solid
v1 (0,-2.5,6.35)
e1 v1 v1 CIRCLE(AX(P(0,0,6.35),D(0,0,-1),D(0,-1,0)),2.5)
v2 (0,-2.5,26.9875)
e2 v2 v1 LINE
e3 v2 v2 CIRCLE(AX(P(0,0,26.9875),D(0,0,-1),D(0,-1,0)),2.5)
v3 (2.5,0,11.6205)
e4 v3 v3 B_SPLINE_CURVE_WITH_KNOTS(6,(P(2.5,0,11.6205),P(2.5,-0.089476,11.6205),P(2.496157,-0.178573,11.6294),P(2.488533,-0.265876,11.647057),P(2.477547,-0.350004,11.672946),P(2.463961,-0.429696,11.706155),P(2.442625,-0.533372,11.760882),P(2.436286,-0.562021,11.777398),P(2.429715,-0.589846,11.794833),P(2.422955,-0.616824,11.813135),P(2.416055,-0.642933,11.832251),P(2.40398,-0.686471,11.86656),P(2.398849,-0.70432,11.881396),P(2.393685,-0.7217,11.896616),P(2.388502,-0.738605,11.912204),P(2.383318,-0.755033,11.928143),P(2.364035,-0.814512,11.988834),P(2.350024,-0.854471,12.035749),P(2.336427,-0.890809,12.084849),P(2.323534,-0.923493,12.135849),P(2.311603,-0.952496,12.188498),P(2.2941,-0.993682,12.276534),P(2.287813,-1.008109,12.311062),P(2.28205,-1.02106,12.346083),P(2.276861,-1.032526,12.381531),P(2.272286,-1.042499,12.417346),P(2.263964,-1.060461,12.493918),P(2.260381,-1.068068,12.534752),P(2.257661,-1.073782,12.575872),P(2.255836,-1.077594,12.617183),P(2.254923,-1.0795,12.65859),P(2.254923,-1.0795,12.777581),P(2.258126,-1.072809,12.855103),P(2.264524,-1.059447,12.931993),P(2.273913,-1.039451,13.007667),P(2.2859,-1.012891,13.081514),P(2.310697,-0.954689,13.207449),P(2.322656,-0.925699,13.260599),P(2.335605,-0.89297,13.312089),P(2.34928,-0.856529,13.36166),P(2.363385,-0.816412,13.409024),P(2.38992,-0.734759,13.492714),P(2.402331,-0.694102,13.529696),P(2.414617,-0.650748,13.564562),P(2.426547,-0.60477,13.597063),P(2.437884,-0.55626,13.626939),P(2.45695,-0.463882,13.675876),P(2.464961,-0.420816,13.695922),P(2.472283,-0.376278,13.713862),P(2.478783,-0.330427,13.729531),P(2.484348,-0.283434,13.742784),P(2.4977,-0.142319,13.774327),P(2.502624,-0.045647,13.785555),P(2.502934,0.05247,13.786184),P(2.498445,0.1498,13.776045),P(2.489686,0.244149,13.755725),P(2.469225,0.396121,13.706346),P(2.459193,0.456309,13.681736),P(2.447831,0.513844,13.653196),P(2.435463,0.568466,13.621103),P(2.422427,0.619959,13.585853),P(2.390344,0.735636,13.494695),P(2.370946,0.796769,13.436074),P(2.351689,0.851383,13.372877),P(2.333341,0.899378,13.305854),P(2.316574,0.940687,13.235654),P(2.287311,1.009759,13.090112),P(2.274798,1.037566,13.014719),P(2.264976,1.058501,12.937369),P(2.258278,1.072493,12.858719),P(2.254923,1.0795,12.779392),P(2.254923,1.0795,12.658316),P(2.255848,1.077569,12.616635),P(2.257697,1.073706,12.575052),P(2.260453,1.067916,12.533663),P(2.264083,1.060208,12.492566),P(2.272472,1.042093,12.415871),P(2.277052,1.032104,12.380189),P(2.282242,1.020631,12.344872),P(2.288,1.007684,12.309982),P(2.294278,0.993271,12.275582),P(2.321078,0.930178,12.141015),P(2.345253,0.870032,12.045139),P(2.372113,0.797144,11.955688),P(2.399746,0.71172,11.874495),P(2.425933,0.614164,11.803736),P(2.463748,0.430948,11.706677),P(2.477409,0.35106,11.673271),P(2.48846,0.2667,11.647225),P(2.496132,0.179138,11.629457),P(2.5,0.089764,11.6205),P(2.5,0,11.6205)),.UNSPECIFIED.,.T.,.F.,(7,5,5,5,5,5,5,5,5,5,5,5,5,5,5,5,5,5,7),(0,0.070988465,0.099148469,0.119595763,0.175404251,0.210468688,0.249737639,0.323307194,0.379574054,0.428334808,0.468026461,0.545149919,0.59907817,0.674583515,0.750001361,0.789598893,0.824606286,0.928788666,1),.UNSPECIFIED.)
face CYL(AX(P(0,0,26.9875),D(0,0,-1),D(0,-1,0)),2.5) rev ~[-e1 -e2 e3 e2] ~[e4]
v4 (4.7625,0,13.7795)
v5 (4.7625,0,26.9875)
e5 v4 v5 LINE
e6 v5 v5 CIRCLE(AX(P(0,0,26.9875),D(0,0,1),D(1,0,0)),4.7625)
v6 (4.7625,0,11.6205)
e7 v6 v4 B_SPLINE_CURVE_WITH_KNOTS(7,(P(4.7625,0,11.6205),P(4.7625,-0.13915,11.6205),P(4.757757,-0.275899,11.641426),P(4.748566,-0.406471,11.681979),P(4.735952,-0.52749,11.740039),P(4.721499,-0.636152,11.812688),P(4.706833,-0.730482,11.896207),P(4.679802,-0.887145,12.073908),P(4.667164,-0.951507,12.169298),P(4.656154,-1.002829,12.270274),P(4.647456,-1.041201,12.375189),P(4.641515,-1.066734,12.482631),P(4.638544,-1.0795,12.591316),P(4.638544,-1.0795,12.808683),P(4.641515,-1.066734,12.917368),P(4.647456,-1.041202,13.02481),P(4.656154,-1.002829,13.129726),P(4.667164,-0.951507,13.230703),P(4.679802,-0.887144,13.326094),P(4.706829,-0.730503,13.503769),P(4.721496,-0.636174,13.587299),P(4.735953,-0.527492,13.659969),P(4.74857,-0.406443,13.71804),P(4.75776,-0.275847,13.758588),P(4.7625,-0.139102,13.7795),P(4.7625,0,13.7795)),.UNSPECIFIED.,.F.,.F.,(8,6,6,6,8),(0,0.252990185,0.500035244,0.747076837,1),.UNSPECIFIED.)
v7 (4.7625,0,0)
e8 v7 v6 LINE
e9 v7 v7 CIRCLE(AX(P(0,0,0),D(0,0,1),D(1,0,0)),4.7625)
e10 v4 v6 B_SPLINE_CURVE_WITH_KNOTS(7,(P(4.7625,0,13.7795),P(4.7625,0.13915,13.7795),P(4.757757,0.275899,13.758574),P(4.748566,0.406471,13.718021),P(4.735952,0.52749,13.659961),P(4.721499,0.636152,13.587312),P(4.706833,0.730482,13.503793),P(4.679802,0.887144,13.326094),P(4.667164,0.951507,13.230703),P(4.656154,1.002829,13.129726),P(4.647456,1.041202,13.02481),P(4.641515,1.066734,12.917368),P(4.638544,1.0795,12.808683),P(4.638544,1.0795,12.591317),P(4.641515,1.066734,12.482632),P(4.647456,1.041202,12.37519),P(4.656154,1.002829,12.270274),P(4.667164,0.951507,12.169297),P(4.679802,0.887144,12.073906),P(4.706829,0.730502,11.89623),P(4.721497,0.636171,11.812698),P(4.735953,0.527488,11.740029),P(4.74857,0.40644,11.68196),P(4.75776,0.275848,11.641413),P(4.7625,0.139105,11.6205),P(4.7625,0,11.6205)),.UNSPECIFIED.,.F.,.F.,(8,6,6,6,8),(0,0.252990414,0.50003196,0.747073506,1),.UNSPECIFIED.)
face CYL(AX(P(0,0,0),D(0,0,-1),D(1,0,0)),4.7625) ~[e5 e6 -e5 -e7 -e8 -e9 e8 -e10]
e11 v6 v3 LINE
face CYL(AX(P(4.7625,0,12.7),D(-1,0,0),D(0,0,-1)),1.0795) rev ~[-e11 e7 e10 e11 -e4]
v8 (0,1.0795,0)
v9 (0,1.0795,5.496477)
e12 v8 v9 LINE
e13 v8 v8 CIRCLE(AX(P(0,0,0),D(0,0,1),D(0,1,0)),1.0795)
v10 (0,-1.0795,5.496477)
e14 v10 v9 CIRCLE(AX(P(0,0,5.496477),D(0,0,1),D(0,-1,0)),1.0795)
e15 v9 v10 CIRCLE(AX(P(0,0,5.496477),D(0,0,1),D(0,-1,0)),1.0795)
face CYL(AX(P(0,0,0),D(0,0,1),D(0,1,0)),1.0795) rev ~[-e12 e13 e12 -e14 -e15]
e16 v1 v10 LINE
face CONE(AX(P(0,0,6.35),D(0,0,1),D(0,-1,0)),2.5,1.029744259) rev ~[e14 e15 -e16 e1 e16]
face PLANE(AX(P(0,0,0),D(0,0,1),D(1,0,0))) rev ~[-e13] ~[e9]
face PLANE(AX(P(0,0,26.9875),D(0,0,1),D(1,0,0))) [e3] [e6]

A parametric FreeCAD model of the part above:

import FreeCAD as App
import Part
import Sketcher
Q = App.Units.Quantity

doc = App.newDocument("Part")
params = doc.addObject("Spreadsheet::Sheet", "Params")
for row, (alias, value) in enumerate([
    ("sketch1_diameter", "0.375 in"),
    ("pad1_length", "1.0625 in"),
    ("hole_diameter", "5 mm"),
    ("hole_depth", "0.8125 in"),
    ("sketch3_diameter", "0.085 in"),
    ("hole2_diameter", "0.085 in"),
    ("hole2_depth", "0.349 in"),
    ("sketch4_diameter", "0.085 in"),
    ("hole3_diameter", "0.085 in"),
    ("hole3_depth", "0.15 in"),
], start=1):
    params.set(f"A{row}", alias)
    params.set(f"B{row}", "=" + value)
    params.setAlias(f"B{row}", alias)

body = doc.addObject("PartDesign::Body", "Body")

# Sketch on XY plane
sketch1 = doc.addObject("Sketcher::SketchObject", "Sketch")
body.addObject(sketch1)
sketch1.AttachmentSupport = (doc.XY_Plane, [""])
sketch1.MapMode = "FlatFace"
sketch1.addGeometry(Part.Circle(App.Vector(0, 0, 0), App.Vector(0, 0, 1), 4.8), False)
sketch1.addConstraint(Sketcher.Constraint("Coincident", 0, 3, -1, 1))
sketch1.addConstraint(Sketcher.Constraint("Diameter", 0, Q("0.375 in")))
sketch1.setExpression("Constraints[1]", "Params.sketch1_diameter")
pad1 = doc.addObject("PartDesign::Pad", "Pad")
body.addObject(pad1)
pad1.Profile = sketch1
pad1.setExpression("Length", "Params.pad1_length")

# Sketch on XY plane
sketch2 = doc.addObject("Sketcher::SketchObject", "Sketch001")
body.addObject(sketch2)
sketch2.AttachmentSupport = (doc.XY_Plane, [""])
sketch2.MapMode = "FlatFace"
sketch2.AttachmentOffset = App.Placement(App.Vector(0, 0, 1.0625 * 25.4), App.Rotation())
sketch2.addGeometry(Part.Circle(App.Vector(0, 0, 0), App.Vector(0, 0, 1), 2.5), False)
sketch2.addConstraint(Sketcher.Constraint("Coincident", 0, 3, -1, 1))
sketch2.addConstraint(Sketcher.Constraint("Diameter", 0, 5.0))
doc.recompute()
hole = doc.addObject("PartDesign::Hole", "Hole")
body.addObject(hole)
hole.Profile = sketch2
hole.ThreadType = "None"
hole.setExpression("Diameter", "Params.hole_diameter")
hole.DepthType = "Dimension"
hole.setExpression("Depth", "Params.hole_depth")
hole.DrillPoint = "Angled"
hole.DrillPointAngle = 118

# Sketch on XY plane
sketch3 = doc.addObject("Sketcher::SketchObject", "Sketch002")
body.addObject(sketch3)
sketch3.AttachmentSupport = (doc.XY_Plane, [""])
sketch3.MapMode = "FlatFace"
sketch3.addGeometry(Part.Circle(App.Vector(0, 0, 0), App.Vector(0, 0, 1), 1.1), False)
sketch3.addConstraint(Sketcher.Constraint("Coincident", 0, 3, -1, 1))
sketch3.addConstraint(Sketcher.Constraint("Diameter", 0, Q("0.085 in")))
sketch3.setExpression("Constraints[1]", "Params.sketch3_diameter")
doc.recompute()
hole2 = doc.addObject("PartDesign::Hole", "Hole001")
body.addObject(hole2)
hole2.Profile = sketch3
hole2.ThreadType = "None"
hole2.setExpression("Diameter", "Params.hole2_diameter")
hole2.DepthType = "Dimension"
hole2.setExpression("Depth", "Params.hole2_depth")
hole2.DrillPoint = "Angled"
hole2.DrillPointAngle = 118
hole2.Reversed = True

# Sketch on YZ plane
sketch4 = doc.addObject("Sketcher::SketchObject", "Sketch003")
body.addObject(sketch4)
sketch4.AttachmentSupport = (doc.YZ_Plane, [""])
sketch4.MapMode = "FlatFace"
sketch4.AttachmentOffset = App.Placement(App.Vector(0, 0, 0.1875 * 25.4), App.Rotation())
sketch4.addGeometry(Part.Circle(App.Vector(0, 12.7, 0), App.Vector(0, 0, 1), 1.1), False)
sketch4.addConstraint(Sketcher.Constraint("PointOnObject", 0, 3, -2))
sketch4.addConstraint(Sketcher.Constraint("Diameter", 0, Q("0.085 in")))
sketch4.addConstraint(Sketcher.Constraint("DistanceY", -1, 1, 0, 3, Q("0.5 in")))
sketch4.setExpression("Constraints[1]", "Params.sketch4_diameter")
doc.recompute()
hole3 = doc.addObject("PartDesign::Hole", "Hole002")
body.addObject(hole3)
hole3.Profile = sketch4
hole3.ThreadType = "None"
hole3.setExpression("Diameter", "Params.hole3_diameter")
hole3.DepthType = "Dimension"
hole3.setExpression("Depth", "Params.hole3_depth")
hole3.DrillPoint = "Angled"
hole3.DrillPointAngle = 118

doc.recompute()
